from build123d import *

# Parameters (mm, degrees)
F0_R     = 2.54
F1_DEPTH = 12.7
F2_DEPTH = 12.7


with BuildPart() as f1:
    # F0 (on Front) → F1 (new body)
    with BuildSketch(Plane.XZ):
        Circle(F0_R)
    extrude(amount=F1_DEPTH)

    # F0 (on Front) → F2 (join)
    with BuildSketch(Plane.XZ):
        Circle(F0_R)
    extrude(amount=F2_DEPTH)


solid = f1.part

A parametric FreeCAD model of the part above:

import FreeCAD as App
import Part
import Sketcher
from FreeCAD import Vector
Q = App.Units.Quantity

doc = App.newDocument("Part")
body = doc.addObject("PartDesign::Body", "Body")

# Sketch on XZ plane
sketch1 = doc.addObject("Sketcher::SketchObject", "Sketch")
body.addObject(sketch1)
sketch1.AttachmentSupport = (doc.XZ_Plane, [""])
sketch1.MapMode = "FlatFace"
sketch1.addGeometry(Part.Circle(Vector(0, 0, 0), Vector(0, 0, 1), 2.54), False)
sketch1.addConstraint([
    Sketcher.Constraint("Coincident", 0, 3, -1, 1),
    Sketcher.Constraint("Diameter", 0, Q("0.2 in")),
])
pad1 = doc.addObject("PartDesign::Pad", "Pad")
body.addObject(pad1)
pad1.Profile = sketch1
pad1.Length = Q("0.5 in")

# Sketch on XZ plane
sketch2 = doc.addObject("Sketcher::SketchObject", "Sketch001")
body.addObject(sketch2)
sketch2.AttachmentSupport = (doc.XZ_Plane, [""])
sketch2.MapMode = "FlatFace"
sketch2.addGeometry(Part.Circle(Vector(0, 0, 0), Vector(0, 0, 1), 2.54), False)
sketch2.addConstraint([
    Sketcher.Constraint("Coincident", 0, 3, -1, 1),
    Sketcher.Constraint("Diameter", 0, Q("0.2 in")),
])
pad2 = doc.addObject("PartDesign::Pad", "Pad001")
body.addObject(pad2)
pad2.Profile = sketch2
pad2.Length = Q("0.5 in")

doc.recompute()
